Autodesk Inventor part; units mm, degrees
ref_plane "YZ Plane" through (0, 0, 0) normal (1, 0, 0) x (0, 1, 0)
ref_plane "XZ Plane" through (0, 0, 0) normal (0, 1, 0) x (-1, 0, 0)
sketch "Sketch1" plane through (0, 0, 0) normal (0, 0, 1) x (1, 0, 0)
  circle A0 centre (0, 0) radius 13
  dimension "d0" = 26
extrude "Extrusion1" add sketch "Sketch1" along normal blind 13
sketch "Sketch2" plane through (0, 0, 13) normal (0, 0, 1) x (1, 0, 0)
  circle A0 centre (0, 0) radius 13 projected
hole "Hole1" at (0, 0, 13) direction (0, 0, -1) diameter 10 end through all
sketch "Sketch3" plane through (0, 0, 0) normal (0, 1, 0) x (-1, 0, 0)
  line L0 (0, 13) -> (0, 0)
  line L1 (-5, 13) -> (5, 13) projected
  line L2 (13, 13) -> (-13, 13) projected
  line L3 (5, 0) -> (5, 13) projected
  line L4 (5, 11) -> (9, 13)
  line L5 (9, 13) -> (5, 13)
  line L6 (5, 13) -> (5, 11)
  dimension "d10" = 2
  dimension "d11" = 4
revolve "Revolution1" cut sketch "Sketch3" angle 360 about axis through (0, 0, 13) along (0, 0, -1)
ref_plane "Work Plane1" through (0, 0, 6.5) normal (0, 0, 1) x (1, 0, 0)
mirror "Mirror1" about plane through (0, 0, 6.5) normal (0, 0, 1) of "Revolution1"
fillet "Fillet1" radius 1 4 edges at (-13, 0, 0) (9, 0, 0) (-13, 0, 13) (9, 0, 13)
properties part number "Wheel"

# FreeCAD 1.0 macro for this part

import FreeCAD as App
import Part
import Sketcher

V = App.Vector
Q = App.Units.Quantity


def edges_at(feature, points):
    """Names of the edges that pass closest to the given points."""
    edges = feature.Shape.Edges
    near = lambda p: min(range(len(edges)), key=lambda i: edges[i].distToShape(Part.Vertex(*p))[0])
    return sorted({f"Edge{near(p) + 1}" for p in points})


def add_polygon(sketch, points):
    """Adds a closed chain of lines whose ends are joined by coincident constraints."""
    first, n = sketch.GeometryCount, len(points)
    for a, b in zip(points, points[1:] + points[:1]):
        sketch.addGeometry(Part.LineSegment(App.Vector(*a, 0), App.Vector(*b, 0)), False)
    for i in range(n):
        sketch.addConstraint(Sketcher.Constraint("Coincident", first + i, 2, first + (i + 1) % n, 1))

doc = App.newDocument("Part")
body = doc.addObject("PartDesign::Body", "Body")

# Sketch on XY plane
sketch1 = body.newObject("Sketcher::SketchObject", "Sketch")
sketch1.AttachmentSupport = (doc.getObject("XY_Plane"), [""])
sketch1.MapMode = "FlatFace"
sketch1.addGeometry(Part.Circle(V(0, 0, 0), V(0, 0, 1), 13), False)
sketch1.addConstraint([
    Sketcher.Constraint("Coincident", 0, 3, -1, 1),
    Sketcher.Constraint("Diameter", 0, Q("26 mm")),
])
pad1 = body.newObject("PartDesign::Pad", "Pad")
pad1.Profile = sketch1
pad1.Length = 13

# Sketch on XY plane
sketch2 = body.newObject("Sketcher::SketchObject", "Sketch001")
sketch2.AttachmentSupport = (doc.getObject("XY_Plane"), [""])
sketch2.MapMode = "FlatFace"
sketch2.AttachmentOffset = App.Placement(V(0, 0, 13), App.Rotation())
sketch2.addGeometry(Part.Circle(V(0, 0, 0), V(0, 0, 1), 5), False)
sketch2.addConstraint([
    Sketcher.Constraint("Coincident", 0, 3, -1, 1),
    Sketcher.Constraint("Diameter", 0, Q("10 mm")),
])
doc.recompute()
hole = body.newObject("PartDesign::Hole", "Hole")
hole.Profile = sketch2
hole.ThreadType = "None"
hole.Diameter = 10
hole.DepthType = "ThroughAll"

# Sketch on XZ plane
sketch3 = body.newObject("Sketcher::SketchObject", "Sketch002")
sketch3.AttachmentSupport = (doc.getObject("XZ_Plane"), [""])
sketch3.MapMode = "FlatFace"
add_polygon(sketch3, [(-5, 11), (-9, 13), (-5, 13)])  # lines 0-2
sketch3.addConstraint([
    Sketcher.Constraint("Horizontal", 1),
    Sketcher.Constraint("Vertical", 2),
    Sketcher.Constraint("DistanceX", 1, 1, 1, 2, Q("4 mm")),
    Sketcher.Constraint("DistanceY", 2, 2, 2, 1, Q("2 mm")),
    Sketcher.Constraint("DistanceX", 0, 2, -1, 1, Q("9 mm")),
    Sketcher.Constraint("DistanceY", -1, 1, 0, 2, Q("13 mm")),
])
groove = body.newObject("PartDesign::Groove", "Groove")
groove.Profile = sketch3
groove.ReferenceAxis = (sketch3, ["V_Axis"])
groove.Angle = 360
doc.recompute()

datumplane = body.newObject("PartDesign::Plane", "DatumPlane")
datumplane.AttachmentSupport = (doc.getObject("XY_Plane"), [""])
datumplane.MapMode = "FlatFace"
datumplane.AttachmentOffset = App.Placement(V(0, 0, 6.5), App.Rotation())
mirrored = body.newObject("PartDesign::Mirrored", "Mirrored")
mirrored.Originals = [groove]
mirrored.MirrorPlane = (datumplane, [""])
body.Tip = mirrored
doc.recompute()

fillet = body.newObject("PartDesign::Fillet", "Fillet")
fillet.Base = (mirrored, edges_at(mirrored, [
    (-13, 0, 0),
    (9, 0, 0),
    (-13, 0, 13),
    (9, 0, 13),
]))
fillet.Radius = 1

doc.recompute()
